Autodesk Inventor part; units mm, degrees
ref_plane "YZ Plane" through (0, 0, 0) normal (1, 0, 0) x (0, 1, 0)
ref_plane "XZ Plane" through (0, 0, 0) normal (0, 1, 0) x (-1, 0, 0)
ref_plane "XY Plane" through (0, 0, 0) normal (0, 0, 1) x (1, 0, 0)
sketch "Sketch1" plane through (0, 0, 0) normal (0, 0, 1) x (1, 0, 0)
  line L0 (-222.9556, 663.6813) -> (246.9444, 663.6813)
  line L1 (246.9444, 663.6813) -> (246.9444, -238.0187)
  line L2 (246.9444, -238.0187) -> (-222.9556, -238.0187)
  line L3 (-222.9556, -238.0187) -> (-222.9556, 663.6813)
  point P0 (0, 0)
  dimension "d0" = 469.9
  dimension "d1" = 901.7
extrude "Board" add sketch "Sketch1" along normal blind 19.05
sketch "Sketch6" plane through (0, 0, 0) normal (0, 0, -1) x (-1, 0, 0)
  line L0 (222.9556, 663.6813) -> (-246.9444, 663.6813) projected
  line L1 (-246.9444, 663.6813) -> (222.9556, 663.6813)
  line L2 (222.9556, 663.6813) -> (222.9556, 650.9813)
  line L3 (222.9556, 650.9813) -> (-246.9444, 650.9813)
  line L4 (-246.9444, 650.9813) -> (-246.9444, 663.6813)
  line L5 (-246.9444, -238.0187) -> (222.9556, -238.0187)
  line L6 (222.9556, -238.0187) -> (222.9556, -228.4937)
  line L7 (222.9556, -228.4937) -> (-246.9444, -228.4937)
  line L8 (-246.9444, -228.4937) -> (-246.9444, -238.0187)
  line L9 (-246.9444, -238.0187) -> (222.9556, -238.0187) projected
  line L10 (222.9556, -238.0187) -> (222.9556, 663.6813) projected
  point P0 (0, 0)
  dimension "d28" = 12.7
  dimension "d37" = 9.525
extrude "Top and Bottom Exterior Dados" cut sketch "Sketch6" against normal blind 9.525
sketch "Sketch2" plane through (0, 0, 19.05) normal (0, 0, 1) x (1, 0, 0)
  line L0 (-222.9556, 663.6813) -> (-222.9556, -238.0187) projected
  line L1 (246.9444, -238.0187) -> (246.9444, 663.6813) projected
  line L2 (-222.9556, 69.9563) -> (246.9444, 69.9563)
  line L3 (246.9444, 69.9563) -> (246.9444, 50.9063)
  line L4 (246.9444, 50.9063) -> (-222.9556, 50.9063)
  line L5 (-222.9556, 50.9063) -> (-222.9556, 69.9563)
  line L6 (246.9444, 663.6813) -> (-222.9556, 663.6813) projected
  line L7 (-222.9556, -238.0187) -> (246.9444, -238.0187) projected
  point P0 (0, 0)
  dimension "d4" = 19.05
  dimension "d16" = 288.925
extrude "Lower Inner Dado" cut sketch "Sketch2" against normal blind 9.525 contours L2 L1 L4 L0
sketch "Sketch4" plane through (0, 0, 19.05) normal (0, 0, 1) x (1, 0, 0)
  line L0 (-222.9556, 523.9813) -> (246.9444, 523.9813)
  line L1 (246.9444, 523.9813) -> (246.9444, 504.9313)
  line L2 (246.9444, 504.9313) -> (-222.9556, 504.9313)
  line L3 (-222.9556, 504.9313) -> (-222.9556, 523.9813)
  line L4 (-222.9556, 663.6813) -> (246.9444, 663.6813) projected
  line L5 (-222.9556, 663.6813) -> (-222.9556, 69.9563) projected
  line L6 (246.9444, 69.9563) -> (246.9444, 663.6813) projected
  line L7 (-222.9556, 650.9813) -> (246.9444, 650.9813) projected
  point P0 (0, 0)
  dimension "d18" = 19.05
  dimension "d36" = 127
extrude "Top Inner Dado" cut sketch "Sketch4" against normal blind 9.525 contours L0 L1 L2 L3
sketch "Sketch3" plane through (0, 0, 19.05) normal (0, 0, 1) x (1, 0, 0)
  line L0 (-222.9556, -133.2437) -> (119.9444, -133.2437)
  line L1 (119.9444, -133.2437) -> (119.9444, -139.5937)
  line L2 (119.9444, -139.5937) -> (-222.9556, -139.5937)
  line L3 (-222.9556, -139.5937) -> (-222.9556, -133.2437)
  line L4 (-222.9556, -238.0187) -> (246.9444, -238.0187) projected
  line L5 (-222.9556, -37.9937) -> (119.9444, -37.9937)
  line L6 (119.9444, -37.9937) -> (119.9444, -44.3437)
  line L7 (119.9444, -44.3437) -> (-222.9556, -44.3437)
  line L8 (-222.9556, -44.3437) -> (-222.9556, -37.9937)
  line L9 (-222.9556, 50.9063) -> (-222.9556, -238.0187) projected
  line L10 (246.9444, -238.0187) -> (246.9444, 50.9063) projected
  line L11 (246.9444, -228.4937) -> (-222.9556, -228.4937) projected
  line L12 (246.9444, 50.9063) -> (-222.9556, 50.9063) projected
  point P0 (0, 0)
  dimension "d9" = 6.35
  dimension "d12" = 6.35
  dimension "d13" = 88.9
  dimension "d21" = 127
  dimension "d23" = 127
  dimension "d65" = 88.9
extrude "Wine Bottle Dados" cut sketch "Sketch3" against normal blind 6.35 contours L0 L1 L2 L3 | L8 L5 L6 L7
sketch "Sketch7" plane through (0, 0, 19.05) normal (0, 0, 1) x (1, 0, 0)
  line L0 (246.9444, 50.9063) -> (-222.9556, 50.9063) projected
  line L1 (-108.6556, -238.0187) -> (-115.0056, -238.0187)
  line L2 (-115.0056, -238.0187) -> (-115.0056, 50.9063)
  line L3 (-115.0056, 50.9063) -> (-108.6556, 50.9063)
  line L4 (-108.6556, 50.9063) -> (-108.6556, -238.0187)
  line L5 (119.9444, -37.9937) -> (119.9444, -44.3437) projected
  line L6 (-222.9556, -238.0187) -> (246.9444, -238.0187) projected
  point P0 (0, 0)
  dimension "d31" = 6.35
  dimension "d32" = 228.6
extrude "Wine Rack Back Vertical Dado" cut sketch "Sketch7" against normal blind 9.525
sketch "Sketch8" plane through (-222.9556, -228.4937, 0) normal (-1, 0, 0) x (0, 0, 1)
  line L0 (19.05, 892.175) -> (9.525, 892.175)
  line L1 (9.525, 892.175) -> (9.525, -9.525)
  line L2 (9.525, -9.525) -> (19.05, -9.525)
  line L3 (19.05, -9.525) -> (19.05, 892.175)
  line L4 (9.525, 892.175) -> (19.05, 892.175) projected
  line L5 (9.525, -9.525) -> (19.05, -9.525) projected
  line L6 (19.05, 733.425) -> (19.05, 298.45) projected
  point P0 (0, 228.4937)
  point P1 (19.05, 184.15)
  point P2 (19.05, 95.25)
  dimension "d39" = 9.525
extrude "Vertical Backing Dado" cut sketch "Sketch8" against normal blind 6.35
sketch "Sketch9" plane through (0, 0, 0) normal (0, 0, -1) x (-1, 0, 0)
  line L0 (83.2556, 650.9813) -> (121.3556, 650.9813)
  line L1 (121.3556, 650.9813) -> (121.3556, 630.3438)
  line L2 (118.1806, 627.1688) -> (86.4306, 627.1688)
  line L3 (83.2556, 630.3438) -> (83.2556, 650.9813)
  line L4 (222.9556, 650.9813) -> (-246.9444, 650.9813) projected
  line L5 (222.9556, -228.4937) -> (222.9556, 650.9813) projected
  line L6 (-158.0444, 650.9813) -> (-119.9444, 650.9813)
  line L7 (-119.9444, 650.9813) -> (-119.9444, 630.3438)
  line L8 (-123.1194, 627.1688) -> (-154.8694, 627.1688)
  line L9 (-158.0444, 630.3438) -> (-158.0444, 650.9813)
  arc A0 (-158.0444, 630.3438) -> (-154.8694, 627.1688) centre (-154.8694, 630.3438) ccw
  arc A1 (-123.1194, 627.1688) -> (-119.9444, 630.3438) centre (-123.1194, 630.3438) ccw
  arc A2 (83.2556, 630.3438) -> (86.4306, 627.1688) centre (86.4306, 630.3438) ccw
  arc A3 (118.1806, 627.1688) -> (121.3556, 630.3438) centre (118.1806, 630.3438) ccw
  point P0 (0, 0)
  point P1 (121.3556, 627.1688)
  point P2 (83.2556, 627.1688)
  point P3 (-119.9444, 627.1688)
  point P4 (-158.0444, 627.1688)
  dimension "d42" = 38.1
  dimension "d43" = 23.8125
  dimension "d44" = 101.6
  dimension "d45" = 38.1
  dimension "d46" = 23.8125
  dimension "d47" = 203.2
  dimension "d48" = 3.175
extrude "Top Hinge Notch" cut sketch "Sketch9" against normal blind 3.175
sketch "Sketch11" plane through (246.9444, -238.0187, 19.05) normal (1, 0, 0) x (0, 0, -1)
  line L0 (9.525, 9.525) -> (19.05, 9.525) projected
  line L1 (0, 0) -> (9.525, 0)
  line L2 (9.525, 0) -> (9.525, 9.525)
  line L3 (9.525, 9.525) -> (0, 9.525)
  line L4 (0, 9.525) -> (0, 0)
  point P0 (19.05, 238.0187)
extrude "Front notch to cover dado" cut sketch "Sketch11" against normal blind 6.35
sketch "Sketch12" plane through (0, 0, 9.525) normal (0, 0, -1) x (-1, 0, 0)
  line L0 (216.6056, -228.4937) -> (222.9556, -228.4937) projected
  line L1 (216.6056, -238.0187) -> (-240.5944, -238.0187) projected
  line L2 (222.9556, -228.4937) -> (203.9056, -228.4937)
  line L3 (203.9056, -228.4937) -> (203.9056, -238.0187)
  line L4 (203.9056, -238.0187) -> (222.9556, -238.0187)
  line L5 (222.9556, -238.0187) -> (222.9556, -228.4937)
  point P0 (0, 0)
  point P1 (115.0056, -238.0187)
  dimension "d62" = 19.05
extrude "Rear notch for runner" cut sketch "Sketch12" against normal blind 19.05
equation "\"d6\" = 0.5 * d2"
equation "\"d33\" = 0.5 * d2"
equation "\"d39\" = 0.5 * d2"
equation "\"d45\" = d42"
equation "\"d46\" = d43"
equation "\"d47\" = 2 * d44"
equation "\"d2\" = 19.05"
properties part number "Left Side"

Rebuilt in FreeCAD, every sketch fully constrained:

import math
import FreeCAD as App
import Part
import Sketcher
Q = App.Units.Quantity


def add_polygon(sketch, points):
    """Adds a closed chain of lines whose ends are joined by coincident constraints."""
    first, n = sketch.GeometryCount, len(points)
    for a, b in zip(points, points[1:] + points[:1]):
        sketch.addGeometry(Part.LineSegment(App.Vector(*a, 0), App.Vector(*b, 0)), False)
    for i in range(n):
        sketch.addConstraint(Sketcher.Constraint("Coincident", first + i, 2, first + (i + 1) % n, 1))

doc = App.newDocument("Part")
body = doc.addObject("PartDesign::Body", "Body")

# Sketch on XY plane
sketch1 = doc.addObject("Sketcher::SketchObject", "Sketch")
body.addObject(sketch1)
sketch1.AttachmentSupport = (doc.XY_Plane, [""])
sketch1.MapMode = "FlatFace"
add_polygon(sketch1, [(246.9444, 663.6813), (-222.9556, 663.6813), (-222.9556, -238.0187), (246.9444, -238.0187)])  # lines 0-3
sketch1.addConstraint([
    Sketcher.Constraint("Horizontal", 0),
    Sketcher.Constraint("Vertical", 1),
    Sketcher.Constraint("Horizontal", 2),
    Sketcher.Constraint("Vertical", 3),
    Sketcher.Constraint("DistanceX", 0, 2, 0, 1, Q("18.5 in")),
    Sketcher.Constraint("DistanceY", 1, 2, 1, 1, Q("35.5 in")),
    Sketcher.Constraint("DistanceX", 0, 2, -1, 1, 222.9556),
    Sketcher.Constraint("DistanceY", -1, 1, 0, 2, 663.6813),
])
pad1 = doc.addObject("PartDesign::Pad", "Pad")
body.addObject(pad1)
pad1.Profile = sketch1
pad1.Length = Q("0.75 in")

# Sketch on XY plane
sketch2 = doc.addObject("Sketcher::SketchObject", "Sketch001")
body.addObject(sketch2)
sketch2.AttachmentSupport = (doc.XY_Plane, [""])
sketch2.MapMode = "FlatFace"
add_polygon(sketch2, [(-222.9556, 650.9813), (-222.9556, 663.6813), (246.9444, 663.6813), (246.9444, 650.9813)])  # lines 0-3
add_polygon(sketch2, [(-222.9556, -238.0187), (-222.9556, -228.4937), (246.9444, -228.4937), (246.9444, -238.0187)])  # lines 4-7
sketch2.addConstraint([
    Sketcher.Constraint("Vertical", 0),
    Sketcher.Constraint("Horizontal", 1),
    Sketcher.Constraint("Vertical", 2),
    Sketcher.Constraint("Horizontal", 3),
    Sketcher.Constraint("Vertical", 4),
    Sketcher.Constraint("Horizontal", 5),
    Sketcher.Constraint("Vertical", 6),
    Sketcher.Constraint("Horizontal", 7),
    Sketcher.Constraint("Vertical", 3, 2, 4, 2),
    Sketcher.Constraint("Vertical", 2, 2, 5, 2),
    Sketcher.Constraint("DistanceY", 0, 1, 0, 2, Q("0.5 in")),
    Sketcher.Constraint("DistanceY", 4, 1, 4, 2, Q("0.375 in")),
    Sketcher.Constraint("DistanceX", 1, 1, 1, 2, Q("18.5 in")),
    Sketcher.Constraint("DistanceY", 6, 2, 2, 2, Q("35 in")),
    Sketcher.Constraint("DistanceX", 0, 2, -1, 1, 222.9556),
    Sketcher.Constraint("DistanceY", -1, 1, 0, 2, 663.6813),
])
pocket1 = doc.addObject("PartDesign::Pocket", "Pocket")
body.addObject(pocket1)
pocket1.Profile = sketch2
pocket1.Length = Q("0.375 in")
pocket1.Reversed = True

# Sketch on XY plane
sketch3 = doc.addObject("Sketcher::SketchObject", "Sketch002")
body.addObject(sketch3)
sketch3.AttachmentSupport = (doc.XY_Plane, [""])
sketch3.MapMode = "FlatFace"
sketch3.AttachmentOffset = App.Placement(App.Vector(0, 0, 0.75 * 25.4), App.Rotation())
add_polygon(sketch3, [(246.9444, 69.9563), (-222.9556, 69.9563), (-222.9556, 50.9063), (246.9444, 50.9063)])  # lines 0-3
sketch3.addConstraint([
    Sketcher.Constraint("Horizontal", 0),
    Sketcher.Constraint("Vertical", 1),
    Sketcher.Constraint("Horizontal", 2),
    Sketcher.Constraint("Vertical", 3),
    Sketcher.Constraint("DistanceY", 1, 2, 1, 1, Q("0.75 in")),
    Sketcher.Constraint("DistanceX", 0, 2, 0, 1, Q("18.5 in")),
    Sketcher.Constraint("DistanceX", 0, 2, -1, 1, 222.9556),
    Sketcher.Constraint("DistanceY", -1, 1, 0, 2, 69.9563),
])
pocket2 = doc.addObject("PartDesign::Pocket", "Pocket001")
body.addObject(pocket2)
pocket2.Profile = sketch3
pocket2.Length = Q("0.375 in")

# Sketch on XY plane
sketch4 = doc.addObject("Sketcher::SketchObject", "Sketch003")
body.addObject(sketch4)
sketch4.AttachmentSupport = (doc.XY_Plane, [""])
sketch4.MapMode = "FlatFace"
sketch4.AttachmentOffset = App.Placement(App.Vector(0, 0, 0.75 * 25.4), App.Rotation())
add_polygon(sketch4, [(246.9444, 523.9813), (-222.9556, 523.9813), (-222.9556, 504.9313), (246.9444, 504.9313)])  # lines 0-3
sketch4.addConstraint([
    Sketcher.Constraint("Horizontal", 0),
    Sketcher.Constraint("Vertical", 1),
    Sketcher.Constraint("Horizontal", 2),
    Sketcher.Constraint("Vertical", 3),
    Sketcher.Constraint("DistanceY", 1, 2, 1, 1, Q("0.75 in")),
    Sketcher.Constraint("DistanceX", 0, 2, 0, 1, Q("18.5 in")),
    Sketcher.Constraint("DistanceX", 0, 2, -1, 1, 222.9556),
    Sketcher.Constraint("DistanceY", -1, 1, 0, 2, 523.9813),
])
pocket3 = doc.addObject("PartDesign::Pocket", "Pocket002")
body.addObject(pocket3)
pocket3.Profile = sketch4
pocket3.Length = Q("0.375 in")

# Sketch on XY plane
sketch5 = doc.addObject("Sketcher::SketchObject", "Sketch004")
body.addObject(sketch5)
sketch5.AttachmentSupport = (doc.XY_Plane, [""])
sketch5.MapMode = "FlatFace"
sketch5.AttachmentOffset = App.Placement(App.Vector(0, 0, 0.75 * 25.4), App.Rotation())
add_polygon(sketch5, [(119.9444, -133.2437), (-222.9556, -133.2437), (-222.9556, -139.5937), (119.9444, -139.5937)])  # lines 0-3
add_polygon(sketch5, [(-222.9556, -37.9937), (-222.9556, -44.3437), (119.9444, -44.3437), (119.9444, -37.9937)])  # lines 4-7
sketch5.addConstraint([
    Sketcher.Constraint("Horizontal", 0),
    Sketcher.Constraint("Vertical", 1),
    Sketcher.Constraint("Horizontal", 2),
    Sketcher.Constraint("Vertical", 3),
    Sketcher.Constraint("Vertical", 4),
    Sketcher.Constraint("Horizontal", 5),
    Sketcher.Constraint("Vertical", 6),
    Sketcher.Constraint("Horizontal", 7),
    Sketcher.Constraint("Vertical", 1, 2, 4, 2),
    Sketcher.Constraint("Vertical", 3, 2, 5, 2),
    Sketcher.Constraint("Equal", 3, 4),
    Sketcher.Constraint("DistanceY", 1, 2, 1, 1, Q("0.25 in")),
    Sketcher.Constraint("DistanceY", 0, 2, 4, 2, Q("3.5 in")),
    Sketcher.Constraint("DistanceX", 0, 2, 0, 1, Q("13.5 in")),
    Sketcher.Constraint("DistanceX", 0, 2, -1, 1, 222.9556),
    Sketcher.Constraint("DistanceY", 0, 2, -1, 1, 133.2437),
])
pocket4 = doc.addObject("PartDesign::Pocket", "Pocket003")
body.addObject(pocket4)
pocket4.Profile = sketch5
pocket4.Length = Q("0.25 in")

# Sketch on XY plane
sketch6 = doc.addObject("Sketcher::SketchObject", "Sketch005")
body.addObject(sketch6)
sketch6.AttachmentSupport = (doc.XY_Plane, [""])
sketch6.MapMode = "FlatFace"
sketch6.AttachmentOffset = App.Placement(App.Vector(0, 0, 0.75 * 25.4), App.Rotation())
add_polygon(sketch6, [(-108.6556, -238.0187), (-108.6556, 50.9063), (-115.0056, 50.9063), (-115.0056, -238.0187)])  # lines 0-3
sketch6.addConstraint([
    Sketcher.Constraint("Vertical", 0),
    Sketcher.Constraint("Horizontal", 1),
    Sketcher.Constraint("Vertical", 2),
    Sketcher.Constraint("Horizontal", 3),
    Sketcher.Constraint("DistanceX", 1, 2, 1, 1, Q("0.25 in")),
    Sketcher.Constraint("DistanceY", 0, 1, 0, 2, Q("11.375 in")),
    Sketcher.Constraint("DistanceX", 0, 2, -1, 1, 108.6556),
    Sketcher.Constraint("DistanceY", -1, 1, 0, 2, 50.9063),
])
pocket5 = doc.addObject("PartDesign::Pocket", "Pocket004")
body.addObject(pocket5)
pocket5.Profile = sketch6
pocket5.Length = Q("0.375 in")

# Sketch on YZ plane
sketch7 = doc.addObject("Sketcher::SketchObject", "Sketch006")
body.addObject(sketch7)
sketch7.AttachmentSupport = (doc.YZ_Plane, [""])
sketch7.MapMode = "FlatFace"
sketch7.AttachmentOffset = App.Placement(App.Vector(0, 0, -222.9556), App.Rotation())
add_polygon(sketch7, [(-238.0187, 19.05), (663.6813, 19.05), (663.6813, 9.525), (-238.0187, 9.525)])  # lines 0-3
sketch7.addConstraint([
    Sketcher.Constraint("Horizontal", 0),
    Sketcher.Constraint("Vertical", 1),
    Sketcher.Constraint("Horizontal", 2),
    Sketcher.Constraint("Vertical", 3),
    Sketcher.Constraint("DistanceY", 1, 2, 1, 1, Q("0.375 in")),
    Sketcher.Constraint("DistanceX", 0, 1, 0, 2, Q("35.5 in")),
    Sketcher.Constraint("DistanceY", -1, 1, 1, 2, Q("0.375 in")),
    Sketcher.Constraint("DistanceX", -1, 1, 0, 2, 663.6813),
])
pocket6 = doc.addObject("PartDesign::Pocket", "Pocket005")
body.addObject(pocket6)
pocket6.Profile = sketch7
pocket6.Length = Q("0.25 in")
pocket6.Reversed = True

# Sketch on XY plane
sketch8 = doc.addObject("Sketcher::SketchObject", "Sketch007")
body.addObject(sketch8)
sketch8.AttachmentSupport = (doc.XY_Plane, [""])
sketch8.MapMode = "FlatFace"
sketch8.addGeometry([
    Part.LineSegment(App.Vector(-121.3556, 650.9813, 0), App.Vector(-83.2556, 650.9813, 0)),  # 0
    Part.LineSegment(App.Vector(-83.2556, 650.9813, 0), App.Vector(-83.2556, 630.3438, 0)),  # 1
    Part.ArcOfCircle(Part.Circle(App.Vector(-86.4306, 630.3438, 0), App.Vector(0, 0, 1), 3.175), math.radians(-90), math.radians(0)),  # 2
    Part.LineSegment(App.Vector(-86.4306, 627.1688, 0), App.Vector(-118.1806, 627.1688, 0)),  # 3
    Part.ArcOfCircle(Part.Circle(App.Vector(-118.1806, 630.3438, 0), App.Vector(0, 0, 1), 3.175), math.radians(180), math.radians(270)),  # 4
    Part.LineSegment(App.Vector(-121.3556, 630.3438, 0), App.Vector(-121.3556, 650.9813, 0)),  # 5
    Part.LineSegment(App.Vector(119.9444, 630.3438, 0), App.Vector(119.9444, 650.9813, 0)),  # 6
    Part.LineSegment(App.Vector(119.9444, 650.9813, 0), App.Vector(158.0444, 650.9813, 0)),  # 7
    Part.LineSegment(App.Vector(158.0444, 650.9813, 0), App.Vector(158.0444, 630.3438, 0)),  # 8
    Part.ArcOfCircle(Part.Circle(App.Vector(154.8694, 630.3438, 0), App.Vector(0, 0, 1), 3.175), math.radians(-90), math.radians(0)),  # 9
    Part.LineSegment(App.Vector(154.8694, 627.1688, 0), App.Vector(123.1194, 627.1688, 0)),  # 10
    Part.ArcOfCircle(Part.Circle(App.Vector(123.1194, 630.3438, 0), App.Vector(0, 0, 1), 3.175), math.radians(180), math.radians(270)),  # 11
], False)
sketch8.addConstraint([
    Sketcher.Constraint("Coincident", 0, 2, 1, 1),
    Sketcher.Constraint("Tangent", 1, 2, 2, 2),
    Sketcher.Constraint("Tangent", 2, 1, 3, 1),
    Sketcher.Constraint("Tangent", 3, 2, 4, 2),
    Sketcher.Constraint("Tangent", 4, 1, 5, 1),
    Sketcher.Constraint("Coincident", 5, 2, 0, 1),
    Sketcher.Constraint("Coincident", 6, 2, 7, 1),
    Sketcher.Constraint("Coincident", 7, 2, 8, 1),
    Sketcher.Constraint("Tangent", 8, 2, 9, 2),
    Sketcher.Constraint("Tangent", 9, 1, 10, 1),
    Sketcher.Constraint("Tangent", 10, 2, 11, 2),
    Sketcher.Constraint("Tangent", 11, 1, 6, 1),
    Sketcher.Constraint("Horizontal", 0),
    Sketcher.Constraint("Vertical", 1),
    Sketcher.Constraint("Horizontal", 3),
    Sketcher.Constraint("Vertical", 5),
    Sketcher.Constraint("Vertical", 6),
    Sketcher.Constraint("Horizontal", 7),
    Sketcher.Constraint("Vertical", 8),
    Sketcher.Constraint("Horizontal", 10),
    Sketcher.Constraint("Equal", 2, 4),
    Sketcher.Constraint("Equal", 4, 9),
    Sketcher.Constraint("Equal", 9, 11),
    Sketcher.Constraint("Horizontal", 4, 3, 9, 3),
    Sketcher.Constraint("Horizontal", 5, 2, 6, 2),
    Sketcher.Constraint("Equal", 0, 7),
    Sketcher.Constraint("DistanceX", 0, 1, 0, 2, Q("1.5 in")),
    Sketcher.Constraint("Radius", 2, Q("0.125 in")),
    Sketcher.Constraint("DistanceX", 0, 2, 6, 2, Q("8 in")),
    Sketcher.Constraint("DistanceY", 2, 1, 0, 2, Q("0.9375 in")),
    Sketcher.Constraint("DistanceX", 2, 3, -1, 1, 86.4306),
    Sketcher.Constraint("DistanceY", -1, 1, 2, 3, 630.3438),
])
pocket7 = doc.addObject("PartDesign::Pocket", "Pocket006")
body.addObject(pocket7)
pocket7.Profile = sketch8
pocket7.Length = Q("0.125 in")
pocket7.Reversed = True

# Sketch on YZ plane
sketch9 = doc.addObject("Sketcher::SketchObject", "Sketch008")
body.addObject(sketch9)
sketch9.AttachmentSupport = (doc.YZ_Plane, [""])
sketch9.MapMode = "FlatFace"
sketch9.AttachmentOffset = App.Placement(App.Vector(0, 0, 246.9444), App.Rotation())
add_polygon(sketch9, [(-228.4937, 19.05), (-238.0187, 19.05), (-238.0187, 9.525), (-228.4937, 9.525)])  # lines 0-3
sketch9.addConstraint([
    Sketcher.Constraint("Horizontal", 0),
    Sketcher.Constraint("Vertical", 1),
    Sketcher.Constraint("Horizontal", 2),
    Sketcher.Constraint("Vertical", 3),
    Sketcher.Constraint("Equal", 2, 1),
    Sketcher.Constraint("DistanceX", 0, 2, 0, 1, Q("0.375 in")),
    Sketcher.Constraint("DistanceY", -1, 1, 0, 2, Q("0.75 in")),
    Sketcher.Constraint("DistanceX", 0, 2, -1, 1, 238.0187),
])
pocket8 = doc.addObject("PartDesign::Pocket", "Pocket007")
body.addObject(pocket8)
pocket8.Profile = sketch9
pocket8.Length = Q("0.25 in")

# Sketch on XY plane
sketch10 = doc.addObject("Sketcher::SketchObject", "Sketch009")
body.addObject(sketch10)
sketch10.AttachmentSupport = (doc.XY_Plane, [""])
sketch10.MapMode = "FlatFace"
sketch10.AttachmentOffset = App.Placement(App.Vector(0, 0, 0.375 * 25.4), App.Rotation())
add_polygon(sketch10, [(-222.9556, -228.4937), (-203.9056, -228.4937), (-203.9056, -238.0187), (-222.9556, -238.0187)])  # lines 0-3
sketch10.addConstraint([
    Sketcher.Constraint("Horizontal", 0),
    Sketcher.Constraint("Vertical", 1),
    Sketcher.Constraint("Horizontal", 2),
    Sketcher.Constraint("Vertical", 3),
    Sketcher.Constraint("DistanceX", 0, 1, 0, 2, Q("0.75 in")),
    Sketcher.Constraint("DistanceY", 1, 2, 1, 1, Q("0.375 in")),
    Sketcher.Constraint("DistanceX", 0, 2, -1, 1, 203.9056),
    Sketcher.Constraint("DistanceY", 0, 2, -1, 1, 228.4937),
])
pocket9 = doc.addObject("PartDesign::Pocket", "Pocket008")
body.addObject(pocket9)
pocket9.Profile = sketch10
pocket9.Length = Q("0.75 in")
pocket9.Reversed = True

doc.recompute()
